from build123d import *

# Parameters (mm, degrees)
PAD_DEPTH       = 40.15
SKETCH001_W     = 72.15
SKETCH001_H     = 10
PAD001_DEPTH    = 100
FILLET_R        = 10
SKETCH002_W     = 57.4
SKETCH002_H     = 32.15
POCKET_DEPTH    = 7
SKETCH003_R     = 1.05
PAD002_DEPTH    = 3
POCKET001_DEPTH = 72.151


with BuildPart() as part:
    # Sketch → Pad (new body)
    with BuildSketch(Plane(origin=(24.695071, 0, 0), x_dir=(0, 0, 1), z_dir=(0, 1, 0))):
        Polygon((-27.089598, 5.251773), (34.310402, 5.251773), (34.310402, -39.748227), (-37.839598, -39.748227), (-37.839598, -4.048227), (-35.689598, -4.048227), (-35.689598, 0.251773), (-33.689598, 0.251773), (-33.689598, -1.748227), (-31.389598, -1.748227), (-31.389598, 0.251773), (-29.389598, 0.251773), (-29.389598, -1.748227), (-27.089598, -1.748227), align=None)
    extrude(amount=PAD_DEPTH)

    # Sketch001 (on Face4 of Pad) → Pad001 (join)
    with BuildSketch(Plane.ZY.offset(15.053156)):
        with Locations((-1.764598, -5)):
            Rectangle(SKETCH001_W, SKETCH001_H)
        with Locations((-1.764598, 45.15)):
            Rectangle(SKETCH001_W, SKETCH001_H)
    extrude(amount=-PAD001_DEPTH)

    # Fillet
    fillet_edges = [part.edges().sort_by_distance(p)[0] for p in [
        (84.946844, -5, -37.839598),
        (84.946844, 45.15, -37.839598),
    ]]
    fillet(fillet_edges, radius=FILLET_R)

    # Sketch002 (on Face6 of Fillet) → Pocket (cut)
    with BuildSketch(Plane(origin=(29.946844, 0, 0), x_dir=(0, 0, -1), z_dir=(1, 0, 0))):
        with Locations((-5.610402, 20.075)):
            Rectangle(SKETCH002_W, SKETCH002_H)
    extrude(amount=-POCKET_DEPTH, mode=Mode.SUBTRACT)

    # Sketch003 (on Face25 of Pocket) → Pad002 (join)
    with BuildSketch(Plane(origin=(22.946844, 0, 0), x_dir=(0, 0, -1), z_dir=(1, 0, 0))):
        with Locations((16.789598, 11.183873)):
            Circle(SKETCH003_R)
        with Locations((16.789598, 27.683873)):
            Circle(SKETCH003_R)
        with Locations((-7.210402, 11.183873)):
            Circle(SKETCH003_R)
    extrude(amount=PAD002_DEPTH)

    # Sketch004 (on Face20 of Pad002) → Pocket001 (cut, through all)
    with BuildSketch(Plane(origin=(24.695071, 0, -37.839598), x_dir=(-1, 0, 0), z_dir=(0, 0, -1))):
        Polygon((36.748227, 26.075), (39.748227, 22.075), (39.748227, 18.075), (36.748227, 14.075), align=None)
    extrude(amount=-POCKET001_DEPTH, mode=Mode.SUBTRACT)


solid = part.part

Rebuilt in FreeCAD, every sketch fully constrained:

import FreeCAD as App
import Part
import Sketcher
Q = App.Units.Quantity


def edges_at(feature, points):
    """Names of the edges that pass closest to the given points."""
    edges = feature.Shape.Edges
    near = lambda p: min(range(len(edges)), key=lambda i: edges[i].distToShape(Part.Vertex(*p))[0])
    return sorted({f"Edge{near(p) + 1}" for p in points})


def add_polygon(sketch, points):
    """Adds a closed chain of lines whose ends are joined by coincident constraints."""
    first, n = sketch.GeometryCount, len(points)
    for a, b in zip(points, points[1:] + points[:1]):
        sketch.addGeometry(Part.LineSegment(App.Vector(*a, 0), App.Vector(*b, 0)), False)
    for i in range(n):
        sketch.addConstraint(Sketcher.Constraint("Coincident", first + i, 2, first + (i + 1) % n, 1))

doc = App.newDocument("Part")
body = doc.addObject("PartDesign::Body", "Body")

# Sketch on XZ plane
sketch1 = body.newObject("Sketcher::SketchObject", "Sketch")
sketch1.AttachmentSupport = (doc.getObject("XZ_Plane"), [""])
sketch1.MapMode = "FlatFace"
add_polygon(sketch1, [(29.9, 34.3), (29.9, -27.1), (22.9, -27.1), (22.9, -29.4), (24.9, -29.4), (24.9, -31.4), (22.9, -31.4), (22.9, -33.7), (24.9, -33.7), (24.9, -35.7), (20.6, -35.7), (20.6, -37.8), (-15.1, -37.8), (-15.1, 34.3)])  # lines 0-13
sketch1.addConstraint(Sketcher.Constraint("Vertical", 0))
sketch1.addConstraint(Sketcher.Constraint("Horizontal", 1))
sketch1.addConstraint(Sketcher.Constraint("Vertical", 2))
sketch1.addConstraint(Sketcher.Constraint("Horizontal", 3))
sketch1.addConstraint(Sketcher.Constraint("Vertical", 4))
sketch1.addConstraint(Sketcher.Constraint("Horizontal", 5))
sketch1.addConstraint(Sketcher.Constraint("Vertical", 6))
sketch1.addConstraint(Sketcher.Constraint("Horizontal", 7))
sketch1.addConstraint(Sketcher.Constraint("Vertical", 8))
sketch1.addConstraint(Sketcher.Constraint("Horizontal", 9))
sketch1.addConstraint(Sketcher.Constraint("Vertical", 10))
sketch1.addConstraint(Sketcher.Constraint("Horizontal", 11))
sketch1.addConstraint(Sketcher.Constraint("Vertical", 12))
sketch1.addConstraint(Sketcher.Constraint("Horizontal", 13))
sketch1.addConstraint(Sketcher.Constraint("Vertical", 2, 2, 5, 2))
sketch1.addConstraint(Sketcher.Constraint("Vertical", 4, 2, 7, 2))
sketch1.addConstraint(Sketcher.Constraint("Equal", 7, 4))
sketch1.addConstraint(Sketcher.Constraint("Equal", 2, 6))
sketch1.addConstraint(Sketcher.Constraint("Equal", 4, 8))
sketch1.addConstraint(Sketcher.Constraint("DistanceX", 1, 2, 1, 1, Q("7 mm")))
sketch1.addConstraint(Sketcher.Constraint("DistanceX", 3, 1, 3, 2, Q("2 mm")))
sketch1.addConstraint(Sketcher.Constraint("DistanceX", 13, 1, 13, 2, Q("45 mm")))
sketch1.addConstraint(Sketcher.Constraint("DistanceX", 9, 2, 9, 1, Q("4.3 mm")))
sketch1.addConstraint(Sketcher.Constraint("DistanceY", 0, 2, 0, 1, Q("61.4 mm")))
sketch1.addConstraint(Sketcher.Constraint("DistanceY", 2, 2, 2, 1, Q("2.3 mm")))
sketch1.addConstraint(Sketcher.Constraint("DistanceY", 10, 2, 10, 1, Q("2.15 mm")))
sketch1.addConstraint(Sketcher.Constraint("DistanceY", 10, 2, -1, 1, Q("37.839598 mm")))
sketch1.addConstraint(Sketcher.Constraint("DistanceX", -1, 1, 0, 2, Q("29.946844 mm")))
pad1 = body.newObject("PartDesign::Pad", "Pad")
pad1.Profile = sketch1
pad1.Length = 40.15
pad1.Reversed = True

# Sketch on YZ plane
sketch2 = body.newObject("Sketcher::SketchObject", "Sketch001")
sketch2.AttachmentSupport = (doc.getObject("YZ_Plane"), [""])
sketch2.MapMode = "FlatFace"
sketch2.AttachmentOffset = App.Placement(App.Vector(0, 0, -15.053156), App.Rotation())
add_polygon(sketch2, [(0, -38), (-10, -38), (-10, 34), (0, 34)])  # lines 0-3
add_polygon(sketch2, [(50, -38), (40, -38), (40, 34), (50, 34)])  # lines 4-7
sketch2.addConstraint(Sketcher.Constraint("Horizontal", 0))
sketch2.addConstraint(Sketcher.Constraint("Vertical", 1))
sketch2.addConstraint(Sketcher.Constraint("Horizontal", 2))
sketch2.addConstraint(Sketcher.Constraint("Vertical", 3))
sketch2.addConstraint(Sketcher.Constraint("Horizontal", 4))
sketch2.addConstraint(Sketcher.Constraint("Vertical", 5))
sketch2.addConstraint(Sketcher.Constraint("Horizontal", 6))
sketch2.addConstraint(Sketcher.Constraint("Vertical", 7))
sketch2.addConstraint(Sketcher.Constraint("PointOnObject", 2, 2, -2))
sketch2.addConstraint(Sketcher.Constraint("Horizontal", 3, 2, 4, 2))
sketch2.addConstraint(Sketcher.Constraint("Horizontal", 2, 2, 5, 2))
sketch2.addConstraint(Sketcher.Constraint("Equal", 2, 4))
sketch2.addConstraint(Sketcher.Constraint("DistanceX", 0, 2, 0, 1, Q("10 mm")))
sketch2.addConstraint(Sketcher.Constraint("DistanceY", 1, 1, 1, 2, Q("72.15 mm")))
sketch2.addConstraint(Sketcher.Constraint("DistanceX", -1, 1, 4, 2, Q("40.15 mm")))
sketch2.addConstraint(Sketcher.Constraint("DistanceY", 0, 2, -1, 1, Q("37.839598 mm")))
pad2 = body.newObject("PartDesign::Pad", "Pad001")
pad2.Profile = sketch2
pad2.Length = 100
doc.recompute()

fillet = body.newObject("PartDesign::Fillet", "Fillet")
fillet.Base = (pad2, edges_at(pad2, [(84.947, -5, -37.84), (84.947, 45.15, -37.84)]))
fillet.Radius = 10

# Sketch on YZ plane
sketch3 = body.newObject("Sketcher::SketchObject", "Sketch002")
sketch3.AttachmentSupport = (doc.getObject("YZ_Plane"), [""])
sketch3.MapMode = "FlatFace"
sketch3.AttachmentOffset = App.Placement(App.Vector(0, 0, 29.946844), App.Rotation())
add_polygon(sketch3, [(36, 34), (4, 34), (4, -23), (36, -23)])  # lines 0-3
sketch3.addConstraint(Sketcher.Constraint("Horizontal", 0))
sketch3.addConstraint(Sketcher.Constraint("Vertical", 1))
sketch3.addConstraint(Sketcher.Constraint("Horizontal", 2))
sketch3.addConstraint(Sketcher.Constraint("Vertical", 3))
sketch3.addConstraint(Sketcher.Constraint("DistanceY", 1, 2, 1, 1, Q("57.4 mm")))
sketch3.addConstraint(Sketcher.Constraint("DistanceX", -1, 1, 0, 2, Q("4 mm")))
sketch3.addConstraint(Sketcher.Constraint("DistanceX", 0, 2, 0, 1, Q("32.15 mm")))
sketch3.addConstraint(Sketcher.Constraint("DistanceY", -1, 1, 0, 2, Q("34.310402 mm")))
pocket1 = body.newObject("PartDesign::Pocket", "Pocket")
pocket1.Profile = sketch3
pocket1.Length = 7

# Sketch on YZ plane
sketch4 = body.newObject("Sketcher::SketchObject", "Sketch003")
sketch4.AttachmentSupport = (doc.getObject("YZ_Plane"), [""])
sketch4.MapMode = "FlatFace"
sketch4.AttachmentOffset = App.Placement(App.Vector(0, 0, 22.946844), App.Rotation())
sketch4.addGeometry(Part.Circle(App.Vector(11.2, -16.8, 0), App.Vector(0, 0, 1), 1.1), False)
sketch4.addGeometry(Part.Circle(App.Vector(27.7, -16.8, 0), App.Vector(0, 0, 1), 1.1), False)
sketch4.addGeometry(Part.Circle(App.Vector(11.2, 7.2, 0), App.Vector(0, 0, 1), 1.1), False)
sketch4.addConstraint(Sketcher.Constraint("Equal", 0, 1))
sketch4.addConstraint(Sketcher.Constraint("Equal", 1, 2))
sketch4.addConstraint(Sketcher.Constraint("Horizontal", 0, 3, 1, 3))
sketch4.addConstraint(Sketcher.Constraint("Vertical", 0, 3, 2, 3))
sketch4.addConstraint(Sketcher.Constraint("Diameter", 0, Q("2.1 mm")))
sketch4.addConstraint(Sketcher.Constraint("DistanceY", 0, 3, 2, 3, Q("24 mm")))
sketch4.addConstraint(Sketcher.Constraint("DistanceX", 0, 3, 1, 3, Q("16.5 mm")))
sketch4.addConstraint(Sketcher.Constraint("DistanceY", 0, 3, -1, 1, Q("16.789598 mm")))
sketch4.addConstraint(Sketcher.Constraint("DistanceX", -1, 1, 0, 3, Q("11.183873 mm")))
pad3 = body.newObject("PartDesign::Pad", "Pad002")
pad3.Profile = sketch4
pad3.Length = 3

# Sketch on XY plane
sketch5 = body.newObject("Sketcher::SketchObject", "Sketch004")
sketch5.AttachmentSupport = (doc.getObject("XY_Plane"), [""])
sketch5.MapMode = "FlatFace"
sketch5.AttachmentOffset = App.Placement(App.Vector(0, 0, -37.839598), App.Rotation())
add_polygon(sketch5, [(-15.1, 22.1), (-12.1, 26.1), (-12.1, 14.1), (-15.1, 18.1)])  # lines 0-3
sketch5.addConstraint(Sketcher.Constraint("Vertical", 1))
sketch5.addConstraint(Sketcher.Constraint("Vertical", 3))
sketch5.addConstraint(Sketcher.Constraint("Equal", 0, 2))
sketch5.addConstraint(Sketcher.Constraint("DistanceY", 1, 2, 1, 1, Q("12 mm")))
sketch5.addConstraint(Sketcher.Constraint("DistanceY", 3, 1, 3, 2, Q("4 mm")))
sketch5.addConstraint(Sketcher.Constraint("Distance", 0, Q("5 mm")))
sketch5.addConstraint(Sketcher.Constraint("DistanceY", -1, 1, 0, 2, Q("26.075 mm")))
sketch5.addConstraint(Sketcher.Constraint("DistanceX", 0, 2, -1, 1, Q("12.053156 mm")))
pocket2 = body.newObject("PartDesign::Pocket", "Pocket001")
pocket2.Profile = sketch5
pocket2.Type = "ThroughAll"
pocket2.Reversed = True

doc.recompute()
